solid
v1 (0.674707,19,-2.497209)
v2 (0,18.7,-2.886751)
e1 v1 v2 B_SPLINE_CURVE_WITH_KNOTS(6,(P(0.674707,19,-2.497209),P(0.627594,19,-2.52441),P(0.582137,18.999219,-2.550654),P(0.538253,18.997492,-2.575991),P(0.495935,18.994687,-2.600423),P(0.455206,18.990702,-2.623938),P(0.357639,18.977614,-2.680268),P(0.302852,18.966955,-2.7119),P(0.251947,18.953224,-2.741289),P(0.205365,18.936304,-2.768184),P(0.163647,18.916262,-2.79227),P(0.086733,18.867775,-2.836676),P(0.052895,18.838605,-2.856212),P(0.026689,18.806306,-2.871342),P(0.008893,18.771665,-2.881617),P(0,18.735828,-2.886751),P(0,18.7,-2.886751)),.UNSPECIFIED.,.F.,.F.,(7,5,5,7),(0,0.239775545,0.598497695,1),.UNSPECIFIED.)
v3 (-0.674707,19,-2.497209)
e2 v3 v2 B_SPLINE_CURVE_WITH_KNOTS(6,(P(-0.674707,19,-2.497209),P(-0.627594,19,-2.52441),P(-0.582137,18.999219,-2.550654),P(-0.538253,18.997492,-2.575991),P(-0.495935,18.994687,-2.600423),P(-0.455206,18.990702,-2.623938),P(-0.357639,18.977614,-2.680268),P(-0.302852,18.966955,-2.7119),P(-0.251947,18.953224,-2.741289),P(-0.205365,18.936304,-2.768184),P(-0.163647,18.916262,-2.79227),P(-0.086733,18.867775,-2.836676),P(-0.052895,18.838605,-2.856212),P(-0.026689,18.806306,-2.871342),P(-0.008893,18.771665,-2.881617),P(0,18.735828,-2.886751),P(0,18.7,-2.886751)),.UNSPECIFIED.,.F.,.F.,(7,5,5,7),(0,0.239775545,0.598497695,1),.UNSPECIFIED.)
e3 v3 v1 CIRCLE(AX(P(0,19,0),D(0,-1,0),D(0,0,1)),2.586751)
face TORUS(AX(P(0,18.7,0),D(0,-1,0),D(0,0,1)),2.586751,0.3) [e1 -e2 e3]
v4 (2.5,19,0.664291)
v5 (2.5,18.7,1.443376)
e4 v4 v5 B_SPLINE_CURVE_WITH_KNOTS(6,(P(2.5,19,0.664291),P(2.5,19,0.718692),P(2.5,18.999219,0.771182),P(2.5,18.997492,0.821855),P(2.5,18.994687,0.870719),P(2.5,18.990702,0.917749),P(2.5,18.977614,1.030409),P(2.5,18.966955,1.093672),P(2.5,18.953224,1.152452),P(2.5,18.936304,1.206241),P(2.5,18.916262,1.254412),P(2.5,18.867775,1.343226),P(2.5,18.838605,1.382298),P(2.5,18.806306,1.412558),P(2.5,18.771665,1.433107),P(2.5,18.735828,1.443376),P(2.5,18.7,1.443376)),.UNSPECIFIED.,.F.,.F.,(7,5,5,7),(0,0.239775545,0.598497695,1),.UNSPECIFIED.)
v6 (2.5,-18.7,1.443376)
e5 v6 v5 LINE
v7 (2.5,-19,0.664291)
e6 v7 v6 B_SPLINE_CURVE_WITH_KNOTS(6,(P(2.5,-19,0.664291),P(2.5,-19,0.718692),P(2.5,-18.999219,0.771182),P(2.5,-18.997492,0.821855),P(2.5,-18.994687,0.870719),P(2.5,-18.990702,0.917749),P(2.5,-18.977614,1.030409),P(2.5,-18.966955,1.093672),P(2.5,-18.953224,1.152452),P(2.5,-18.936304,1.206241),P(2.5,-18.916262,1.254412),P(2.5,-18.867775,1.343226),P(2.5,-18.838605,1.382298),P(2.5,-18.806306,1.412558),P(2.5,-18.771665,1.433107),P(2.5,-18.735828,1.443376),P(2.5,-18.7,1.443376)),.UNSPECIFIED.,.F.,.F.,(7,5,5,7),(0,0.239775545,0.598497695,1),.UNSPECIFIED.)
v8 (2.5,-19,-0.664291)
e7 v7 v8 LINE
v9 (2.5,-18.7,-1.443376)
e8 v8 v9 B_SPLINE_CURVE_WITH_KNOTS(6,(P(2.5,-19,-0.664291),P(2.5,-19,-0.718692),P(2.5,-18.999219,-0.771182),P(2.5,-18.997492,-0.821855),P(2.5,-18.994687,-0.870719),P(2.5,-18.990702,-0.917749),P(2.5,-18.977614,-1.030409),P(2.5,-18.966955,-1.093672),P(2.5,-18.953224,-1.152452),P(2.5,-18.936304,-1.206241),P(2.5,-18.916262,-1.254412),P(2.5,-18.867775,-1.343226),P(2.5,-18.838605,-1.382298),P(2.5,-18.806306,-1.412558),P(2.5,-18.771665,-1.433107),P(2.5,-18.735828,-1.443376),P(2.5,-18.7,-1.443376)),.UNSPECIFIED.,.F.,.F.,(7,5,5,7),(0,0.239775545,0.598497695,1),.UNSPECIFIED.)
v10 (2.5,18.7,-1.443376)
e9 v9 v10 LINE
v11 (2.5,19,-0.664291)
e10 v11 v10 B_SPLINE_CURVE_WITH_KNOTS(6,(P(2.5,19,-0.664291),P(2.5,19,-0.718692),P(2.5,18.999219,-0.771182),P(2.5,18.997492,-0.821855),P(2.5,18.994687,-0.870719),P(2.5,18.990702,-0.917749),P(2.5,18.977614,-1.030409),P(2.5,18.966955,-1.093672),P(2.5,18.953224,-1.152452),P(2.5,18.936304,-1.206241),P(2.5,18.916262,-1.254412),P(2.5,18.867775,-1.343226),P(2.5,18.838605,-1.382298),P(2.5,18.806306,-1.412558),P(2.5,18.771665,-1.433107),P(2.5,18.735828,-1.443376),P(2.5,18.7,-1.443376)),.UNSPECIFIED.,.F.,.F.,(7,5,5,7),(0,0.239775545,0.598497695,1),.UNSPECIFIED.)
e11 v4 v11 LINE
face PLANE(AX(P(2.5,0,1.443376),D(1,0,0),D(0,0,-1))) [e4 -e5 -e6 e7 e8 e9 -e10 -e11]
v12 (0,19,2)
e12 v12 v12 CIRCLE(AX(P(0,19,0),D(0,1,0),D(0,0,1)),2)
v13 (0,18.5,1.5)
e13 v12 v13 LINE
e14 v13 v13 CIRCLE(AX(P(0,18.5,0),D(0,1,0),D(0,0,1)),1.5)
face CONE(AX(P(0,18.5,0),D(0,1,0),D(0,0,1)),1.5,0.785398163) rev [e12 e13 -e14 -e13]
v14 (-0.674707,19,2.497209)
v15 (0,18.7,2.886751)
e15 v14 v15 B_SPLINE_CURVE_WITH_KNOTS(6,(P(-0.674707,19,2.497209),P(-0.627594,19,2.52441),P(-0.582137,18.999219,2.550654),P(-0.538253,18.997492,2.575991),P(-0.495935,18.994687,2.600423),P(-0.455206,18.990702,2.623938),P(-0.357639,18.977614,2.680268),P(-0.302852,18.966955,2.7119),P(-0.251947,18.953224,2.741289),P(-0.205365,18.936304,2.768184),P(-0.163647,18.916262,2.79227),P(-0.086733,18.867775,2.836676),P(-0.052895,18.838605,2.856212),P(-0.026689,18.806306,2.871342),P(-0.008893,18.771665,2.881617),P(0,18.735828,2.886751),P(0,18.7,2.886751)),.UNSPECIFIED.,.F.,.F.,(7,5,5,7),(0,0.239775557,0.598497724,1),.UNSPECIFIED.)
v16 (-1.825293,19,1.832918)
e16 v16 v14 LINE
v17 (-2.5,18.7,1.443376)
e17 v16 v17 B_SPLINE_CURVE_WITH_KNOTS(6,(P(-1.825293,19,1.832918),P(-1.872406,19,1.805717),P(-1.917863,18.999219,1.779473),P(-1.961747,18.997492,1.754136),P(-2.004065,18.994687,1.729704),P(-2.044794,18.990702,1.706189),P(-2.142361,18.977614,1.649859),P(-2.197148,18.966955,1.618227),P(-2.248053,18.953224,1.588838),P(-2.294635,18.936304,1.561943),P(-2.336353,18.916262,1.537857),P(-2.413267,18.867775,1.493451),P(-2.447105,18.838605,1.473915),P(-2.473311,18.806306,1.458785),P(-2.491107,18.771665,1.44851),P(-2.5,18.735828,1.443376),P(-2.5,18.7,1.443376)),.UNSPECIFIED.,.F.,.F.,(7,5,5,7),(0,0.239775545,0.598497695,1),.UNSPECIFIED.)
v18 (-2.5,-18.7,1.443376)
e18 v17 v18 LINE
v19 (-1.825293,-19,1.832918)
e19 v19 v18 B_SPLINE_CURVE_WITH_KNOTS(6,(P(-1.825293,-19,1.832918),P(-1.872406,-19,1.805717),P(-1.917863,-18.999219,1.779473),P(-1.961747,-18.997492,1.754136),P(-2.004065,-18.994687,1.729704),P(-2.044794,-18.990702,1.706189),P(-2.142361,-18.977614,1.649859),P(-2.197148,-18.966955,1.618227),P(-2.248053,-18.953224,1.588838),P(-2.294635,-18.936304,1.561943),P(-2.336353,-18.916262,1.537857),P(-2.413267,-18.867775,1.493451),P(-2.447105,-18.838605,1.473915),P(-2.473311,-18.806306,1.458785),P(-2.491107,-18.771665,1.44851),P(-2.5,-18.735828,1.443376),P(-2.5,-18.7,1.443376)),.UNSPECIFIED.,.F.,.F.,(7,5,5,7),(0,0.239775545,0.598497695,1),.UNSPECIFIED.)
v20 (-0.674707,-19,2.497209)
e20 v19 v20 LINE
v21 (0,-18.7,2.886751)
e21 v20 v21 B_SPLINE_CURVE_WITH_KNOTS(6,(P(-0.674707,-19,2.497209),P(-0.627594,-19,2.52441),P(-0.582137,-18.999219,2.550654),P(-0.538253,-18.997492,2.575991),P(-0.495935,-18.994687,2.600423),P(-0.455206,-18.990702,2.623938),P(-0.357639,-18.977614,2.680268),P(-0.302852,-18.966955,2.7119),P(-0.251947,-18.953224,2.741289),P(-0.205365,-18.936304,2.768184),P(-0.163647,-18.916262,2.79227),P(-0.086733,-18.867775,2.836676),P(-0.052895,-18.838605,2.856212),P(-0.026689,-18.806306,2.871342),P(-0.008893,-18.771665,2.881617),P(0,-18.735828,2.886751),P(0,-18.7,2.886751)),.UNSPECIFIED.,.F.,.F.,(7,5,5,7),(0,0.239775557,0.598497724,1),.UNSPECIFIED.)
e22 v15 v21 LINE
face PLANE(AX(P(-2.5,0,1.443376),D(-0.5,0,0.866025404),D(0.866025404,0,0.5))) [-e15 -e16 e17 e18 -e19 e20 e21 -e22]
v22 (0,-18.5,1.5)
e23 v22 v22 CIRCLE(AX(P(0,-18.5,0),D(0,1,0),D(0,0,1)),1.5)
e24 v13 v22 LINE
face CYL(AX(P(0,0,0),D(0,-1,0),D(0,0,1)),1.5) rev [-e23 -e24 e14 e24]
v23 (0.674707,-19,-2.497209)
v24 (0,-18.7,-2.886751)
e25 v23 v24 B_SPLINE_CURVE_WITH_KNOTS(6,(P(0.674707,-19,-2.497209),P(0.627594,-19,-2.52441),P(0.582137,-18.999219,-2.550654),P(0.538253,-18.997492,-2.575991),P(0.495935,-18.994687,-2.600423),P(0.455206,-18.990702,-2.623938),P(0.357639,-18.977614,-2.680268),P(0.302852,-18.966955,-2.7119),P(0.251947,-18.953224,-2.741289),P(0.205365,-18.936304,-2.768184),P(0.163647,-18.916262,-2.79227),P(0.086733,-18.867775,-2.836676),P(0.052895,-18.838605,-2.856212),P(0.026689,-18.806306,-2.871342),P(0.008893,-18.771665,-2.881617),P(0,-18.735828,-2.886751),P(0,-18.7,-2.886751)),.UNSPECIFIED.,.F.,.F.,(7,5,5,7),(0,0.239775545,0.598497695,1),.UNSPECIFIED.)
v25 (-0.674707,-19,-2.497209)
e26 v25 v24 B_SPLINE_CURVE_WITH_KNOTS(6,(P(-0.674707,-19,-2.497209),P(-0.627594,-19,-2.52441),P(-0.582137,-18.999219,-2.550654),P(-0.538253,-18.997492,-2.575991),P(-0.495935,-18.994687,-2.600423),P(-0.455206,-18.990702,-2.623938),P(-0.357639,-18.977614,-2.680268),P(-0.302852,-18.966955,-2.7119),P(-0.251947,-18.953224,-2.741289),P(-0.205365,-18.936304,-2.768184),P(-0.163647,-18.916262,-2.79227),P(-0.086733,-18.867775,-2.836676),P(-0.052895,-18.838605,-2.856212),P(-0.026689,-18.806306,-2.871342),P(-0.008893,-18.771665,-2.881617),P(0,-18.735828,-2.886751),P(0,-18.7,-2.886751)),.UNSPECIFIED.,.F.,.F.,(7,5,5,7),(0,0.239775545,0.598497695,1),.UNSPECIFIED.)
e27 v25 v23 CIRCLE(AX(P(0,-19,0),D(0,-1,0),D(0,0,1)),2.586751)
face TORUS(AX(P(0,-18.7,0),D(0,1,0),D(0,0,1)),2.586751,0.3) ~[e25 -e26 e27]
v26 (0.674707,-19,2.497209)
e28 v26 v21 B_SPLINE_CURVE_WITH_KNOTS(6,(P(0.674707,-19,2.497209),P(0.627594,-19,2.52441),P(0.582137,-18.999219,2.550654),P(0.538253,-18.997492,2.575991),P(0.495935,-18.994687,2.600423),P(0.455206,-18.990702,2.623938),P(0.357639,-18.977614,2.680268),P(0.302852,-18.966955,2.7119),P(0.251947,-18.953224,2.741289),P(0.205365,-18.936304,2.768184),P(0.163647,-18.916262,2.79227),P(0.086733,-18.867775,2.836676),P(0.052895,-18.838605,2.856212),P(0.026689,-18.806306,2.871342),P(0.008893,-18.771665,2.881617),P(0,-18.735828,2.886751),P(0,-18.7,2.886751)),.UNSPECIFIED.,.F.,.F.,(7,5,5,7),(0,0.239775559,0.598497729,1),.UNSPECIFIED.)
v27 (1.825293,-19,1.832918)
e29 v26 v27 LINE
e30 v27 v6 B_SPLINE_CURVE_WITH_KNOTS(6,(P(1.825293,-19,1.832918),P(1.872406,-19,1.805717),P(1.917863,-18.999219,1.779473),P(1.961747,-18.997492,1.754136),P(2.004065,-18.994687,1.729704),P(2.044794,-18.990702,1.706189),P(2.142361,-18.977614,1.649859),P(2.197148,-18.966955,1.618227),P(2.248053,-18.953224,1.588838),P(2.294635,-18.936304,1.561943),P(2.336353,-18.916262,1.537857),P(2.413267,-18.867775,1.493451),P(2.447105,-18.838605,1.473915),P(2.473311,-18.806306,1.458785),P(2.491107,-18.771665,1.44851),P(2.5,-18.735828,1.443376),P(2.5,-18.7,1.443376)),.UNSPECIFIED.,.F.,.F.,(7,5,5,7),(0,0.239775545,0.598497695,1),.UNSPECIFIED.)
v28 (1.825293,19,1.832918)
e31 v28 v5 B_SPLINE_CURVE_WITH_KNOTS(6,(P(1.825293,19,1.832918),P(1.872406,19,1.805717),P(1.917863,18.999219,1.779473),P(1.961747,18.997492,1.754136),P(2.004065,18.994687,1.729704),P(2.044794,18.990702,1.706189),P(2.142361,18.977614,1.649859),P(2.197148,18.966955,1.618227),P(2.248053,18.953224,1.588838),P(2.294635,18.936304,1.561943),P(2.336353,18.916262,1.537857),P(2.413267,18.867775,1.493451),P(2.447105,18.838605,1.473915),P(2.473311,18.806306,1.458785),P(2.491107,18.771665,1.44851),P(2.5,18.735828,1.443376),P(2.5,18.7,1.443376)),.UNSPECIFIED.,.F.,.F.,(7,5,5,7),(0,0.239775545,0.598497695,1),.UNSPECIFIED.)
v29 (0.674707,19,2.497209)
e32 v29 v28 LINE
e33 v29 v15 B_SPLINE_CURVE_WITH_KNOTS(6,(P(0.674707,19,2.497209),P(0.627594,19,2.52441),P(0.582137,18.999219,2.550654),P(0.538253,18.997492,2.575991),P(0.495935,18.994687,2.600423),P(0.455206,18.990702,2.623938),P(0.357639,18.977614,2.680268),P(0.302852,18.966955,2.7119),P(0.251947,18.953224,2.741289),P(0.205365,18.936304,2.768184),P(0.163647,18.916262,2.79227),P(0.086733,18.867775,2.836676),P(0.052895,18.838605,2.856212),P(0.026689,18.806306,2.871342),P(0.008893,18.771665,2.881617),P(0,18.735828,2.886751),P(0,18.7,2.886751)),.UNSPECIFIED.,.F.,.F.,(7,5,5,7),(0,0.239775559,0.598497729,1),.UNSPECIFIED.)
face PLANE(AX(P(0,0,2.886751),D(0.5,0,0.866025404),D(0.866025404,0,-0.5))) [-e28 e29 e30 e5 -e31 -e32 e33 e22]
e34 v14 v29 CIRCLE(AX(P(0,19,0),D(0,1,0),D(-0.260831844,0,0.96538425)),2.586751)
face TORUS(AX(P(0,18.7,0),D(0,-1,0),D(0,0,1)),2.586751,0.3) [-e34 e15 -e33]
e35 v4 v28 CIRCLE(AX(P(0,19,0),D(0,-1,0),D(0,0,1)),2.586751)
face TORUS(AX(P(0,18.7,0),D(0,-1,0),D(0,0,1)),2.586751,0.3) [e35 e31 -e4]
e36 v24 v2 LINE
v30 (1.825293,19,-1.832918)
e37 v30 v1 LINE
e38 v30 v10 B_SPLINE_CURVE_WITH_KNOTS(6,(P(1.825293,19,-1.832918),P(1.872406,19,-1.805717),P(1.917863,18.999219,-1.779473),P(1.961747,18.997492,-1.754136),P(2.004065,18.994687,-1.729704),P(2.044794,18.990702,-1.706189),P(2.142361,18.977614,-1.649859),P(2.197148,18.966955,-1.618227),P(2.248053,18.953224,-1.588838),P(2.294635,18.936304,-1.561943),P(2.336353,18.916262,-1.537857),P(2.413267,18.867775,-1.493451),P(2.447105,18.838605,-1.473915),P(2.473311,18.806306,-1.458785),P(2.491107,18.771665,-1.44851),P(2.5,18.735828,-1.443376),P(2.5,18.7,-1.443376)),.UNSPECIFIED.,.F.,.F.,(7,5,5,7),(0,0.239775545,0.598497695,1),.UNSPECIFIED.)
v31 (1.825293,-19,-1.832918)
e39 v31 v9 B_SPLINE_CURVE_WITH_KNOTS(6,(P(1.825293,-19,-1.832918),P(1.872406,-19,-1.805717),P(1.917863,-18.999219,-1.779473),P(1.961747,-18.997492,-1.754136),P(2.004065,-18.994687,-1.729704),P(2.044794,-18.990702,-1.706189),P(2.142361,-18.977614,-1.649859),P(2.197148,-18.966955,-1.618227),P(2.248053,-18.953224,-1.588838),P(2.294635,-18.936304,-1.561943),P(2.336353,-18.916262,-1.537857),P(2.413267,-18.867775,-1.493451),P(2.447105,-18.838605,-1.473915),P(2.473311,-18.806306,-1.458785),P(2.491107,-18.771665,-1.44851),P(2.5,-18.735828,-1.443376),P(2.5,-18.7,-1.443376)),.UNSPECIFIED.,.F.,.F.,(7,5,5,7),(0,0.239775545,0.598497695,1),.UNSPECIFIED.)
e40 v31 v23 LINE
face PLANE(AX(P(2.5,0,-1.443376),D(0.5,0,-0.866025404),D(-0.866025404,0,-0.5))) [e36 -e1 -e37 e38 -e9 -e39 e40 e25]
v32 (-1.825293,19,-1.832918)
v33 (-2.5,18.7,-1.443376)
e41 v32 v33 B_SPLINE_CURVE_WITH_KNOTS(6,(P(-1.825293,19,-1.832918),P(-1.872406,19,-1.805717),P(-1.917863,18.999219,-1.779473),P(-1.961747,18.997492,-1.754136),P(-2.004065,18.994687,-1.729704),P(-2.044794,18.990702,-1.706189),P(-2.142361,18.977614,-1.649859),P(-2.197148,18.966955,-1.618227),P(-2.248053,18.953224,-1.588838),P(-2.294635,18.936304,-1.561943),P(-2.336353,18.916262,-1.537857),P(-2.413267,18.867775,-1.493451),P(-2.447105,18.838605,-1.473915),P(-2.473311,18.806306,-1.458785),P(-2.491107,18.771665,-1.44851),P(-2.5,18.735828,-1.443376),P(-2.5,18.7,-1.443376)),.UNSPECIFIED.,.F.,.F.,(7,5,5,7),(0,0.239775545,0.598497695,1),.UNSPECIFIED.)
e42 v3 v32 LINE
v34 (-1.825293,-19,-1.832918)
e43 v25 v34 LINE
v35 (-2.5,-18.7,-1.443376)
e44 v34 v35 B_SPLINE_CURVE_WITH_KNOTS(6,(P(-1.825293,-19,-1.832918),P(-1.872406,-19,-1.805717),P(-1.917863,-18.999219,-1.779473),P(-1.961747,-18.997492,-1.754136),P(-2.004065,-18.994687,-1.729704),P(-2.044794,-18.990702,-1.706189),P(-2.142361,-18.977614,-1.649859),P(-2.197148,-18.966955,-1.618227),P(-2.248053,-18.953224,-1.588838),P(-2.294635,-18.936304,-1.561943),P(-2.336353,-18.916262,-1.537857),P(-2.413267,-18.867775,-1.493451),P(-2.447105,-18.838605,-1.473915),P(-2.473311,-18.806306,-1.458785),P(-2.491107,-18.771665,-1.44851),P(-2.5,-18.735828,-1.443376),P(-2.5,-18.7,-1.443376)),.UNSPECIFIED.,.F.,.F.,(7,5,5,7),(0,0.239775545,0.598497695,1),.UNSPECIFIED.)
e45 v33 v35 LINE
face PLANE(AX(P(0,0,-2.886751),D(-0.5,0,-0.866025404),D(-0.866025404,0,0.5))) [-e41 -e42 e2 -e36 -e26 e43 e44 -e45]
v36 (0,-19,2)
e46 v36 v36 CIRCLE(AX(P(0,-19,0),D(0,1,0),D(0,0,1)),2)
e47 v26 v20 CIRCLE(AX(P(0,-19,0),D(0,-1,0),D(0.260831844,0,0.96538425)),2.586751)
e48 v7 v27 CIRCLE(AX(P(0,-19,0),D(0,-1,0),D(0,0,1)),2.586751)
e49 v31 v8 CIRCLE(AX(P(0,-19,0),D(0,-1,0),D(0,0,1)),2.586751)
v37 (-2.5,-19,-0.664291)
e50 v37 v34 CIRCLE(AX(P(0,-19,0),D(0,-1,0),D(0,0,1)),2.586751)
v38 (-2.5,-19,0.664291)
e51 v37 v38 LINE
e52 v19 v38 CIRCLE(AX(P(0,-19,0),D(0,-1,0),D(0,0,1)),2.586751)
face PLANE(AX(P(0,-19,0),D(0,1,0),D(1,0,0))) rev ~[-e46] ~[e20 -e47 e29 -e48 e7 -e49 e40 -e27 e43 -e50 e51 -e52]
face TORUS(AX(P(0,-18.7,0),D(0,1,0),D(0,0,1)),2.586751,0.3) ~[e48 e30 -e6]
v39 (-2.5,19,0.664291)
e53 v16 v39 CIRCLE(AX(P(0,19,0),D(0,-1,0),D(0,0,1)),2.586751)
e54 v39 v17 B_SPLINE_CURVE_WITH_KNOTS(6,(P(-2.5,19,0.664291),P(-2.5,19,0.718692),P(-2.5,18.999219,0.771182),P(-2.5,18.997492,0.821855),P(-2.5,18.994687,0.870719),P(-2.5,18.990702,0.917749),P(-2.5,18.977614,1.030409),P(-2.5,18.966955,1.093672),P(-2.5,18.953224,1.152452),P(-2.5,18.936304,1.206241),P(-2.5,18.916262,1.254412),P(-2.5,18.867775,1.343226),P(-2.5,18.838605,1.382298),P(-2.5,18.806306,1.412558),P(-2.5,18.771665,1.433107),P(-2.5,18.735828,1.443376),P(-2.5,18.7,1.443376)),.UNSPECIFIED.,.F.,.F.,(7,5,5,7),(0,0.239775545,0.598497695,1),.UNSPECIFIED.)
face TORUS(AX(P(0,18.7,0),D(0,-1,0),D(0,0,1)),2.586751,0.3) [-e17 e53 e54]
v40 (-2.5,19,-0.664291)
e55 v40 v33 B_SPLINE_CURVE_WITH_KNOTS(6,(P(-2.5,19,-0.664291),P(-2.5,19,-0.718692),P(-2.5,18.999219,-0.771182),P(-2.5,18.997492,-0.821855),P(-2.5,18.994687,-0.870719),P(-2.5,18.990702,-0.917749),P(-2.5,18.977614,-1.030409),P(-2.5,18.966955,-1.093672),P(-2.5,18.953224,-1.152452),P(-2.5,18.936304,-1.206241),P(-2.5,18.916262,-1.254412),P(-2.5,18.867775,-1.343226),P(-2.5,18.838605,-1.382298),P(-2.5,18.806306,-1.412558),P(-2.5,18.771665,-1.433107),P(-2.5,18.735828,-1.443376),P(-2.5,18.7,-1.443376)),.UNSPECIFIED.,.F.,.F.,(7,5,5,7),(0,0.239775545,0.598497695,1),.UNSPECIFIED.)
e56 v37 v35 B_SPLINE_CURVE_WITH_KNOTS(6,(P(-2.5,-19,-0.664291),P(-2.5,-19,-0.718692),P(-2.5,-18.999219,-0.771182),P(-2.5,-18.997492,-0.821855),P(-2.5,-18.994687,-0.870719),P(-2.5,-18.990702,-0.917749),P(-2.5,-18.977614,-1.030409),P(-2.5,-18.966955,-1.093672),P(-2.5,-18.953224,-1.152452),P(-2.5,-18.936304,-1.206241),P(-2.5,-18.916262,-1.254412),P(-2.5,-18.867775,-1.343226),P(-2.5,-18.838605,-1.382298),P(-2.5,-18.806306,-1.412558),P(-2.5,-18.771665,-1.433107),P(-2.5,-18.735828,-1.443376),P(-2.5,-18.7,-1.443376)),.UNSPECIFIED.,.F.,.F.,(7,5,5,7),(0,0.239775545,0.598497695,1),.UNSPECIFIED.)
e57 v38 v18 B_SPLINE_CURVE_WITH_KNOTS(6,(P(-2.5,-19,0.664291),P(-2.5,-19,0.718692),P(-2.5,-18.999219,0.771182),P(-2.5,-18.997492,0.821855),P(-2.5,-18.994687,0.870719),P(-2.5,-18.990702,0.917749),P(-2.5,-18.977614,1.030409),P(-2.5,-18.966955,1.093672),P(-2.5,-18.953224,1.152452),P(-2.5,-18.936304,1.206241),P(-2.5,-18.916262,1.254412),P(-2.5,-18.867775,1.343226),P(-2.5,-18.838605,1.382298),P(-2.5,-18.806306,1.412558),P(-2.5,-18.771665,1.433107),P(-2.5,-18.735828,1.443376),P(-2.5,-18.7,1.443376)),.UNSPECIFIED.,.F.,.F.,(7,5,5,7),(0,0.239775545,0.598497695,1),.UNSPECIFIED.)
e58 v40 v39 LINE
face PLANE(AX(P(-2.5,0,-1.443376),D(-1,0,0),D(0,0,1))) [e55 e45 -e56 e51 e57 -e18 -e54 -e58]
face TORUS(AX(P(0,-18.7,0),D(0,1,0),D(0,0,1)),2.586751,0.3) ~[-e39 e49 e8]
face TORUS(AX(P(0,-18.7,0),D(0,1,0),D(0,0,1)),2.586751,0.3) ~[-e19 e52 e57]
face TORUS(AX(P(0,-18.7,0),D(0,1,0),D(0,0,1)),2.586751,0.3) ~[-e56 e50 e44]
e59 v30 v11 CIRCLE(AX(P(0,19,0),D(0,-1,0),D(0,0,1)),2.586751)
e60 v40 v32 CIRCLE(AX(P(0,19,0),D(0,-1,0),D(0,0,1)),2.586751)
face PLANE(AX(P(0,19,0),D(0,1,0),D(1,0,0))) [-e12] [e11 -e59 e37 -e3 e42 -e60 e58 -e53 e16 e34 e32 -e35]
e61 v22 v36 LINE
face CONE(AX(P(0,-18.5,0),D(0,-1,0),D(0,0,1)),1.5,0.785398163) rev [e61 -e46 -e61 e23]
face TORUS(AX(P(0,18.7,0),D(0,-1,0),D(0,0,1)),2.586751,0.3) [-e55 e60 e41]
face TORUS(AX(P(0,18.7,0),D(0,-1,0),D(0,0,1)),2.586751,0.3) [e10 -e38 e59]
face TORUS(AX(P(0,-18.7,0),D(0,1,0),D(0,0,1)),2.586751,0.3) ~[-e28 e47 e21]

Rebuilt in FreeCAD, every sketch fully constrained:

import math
import FreeCAD as App
import Part
import Sketcher
from FreeCAD import Vector
Q = App.Units.Quantity


def edges_at(feature, points):
    """Names of the edges that pass closest to the given points."""
    edges = feature.Shape.Edges
    near = lambda p: min(range(len(edges)), key=lambda i: edges[i].distToShape(Part.Vertex(*p))[0])
    return sorted({f"Edge{near(p) + 1}" for p in points})

doc = App.newDocument("Part")
body = doc.addObject("PartDesign::Body", "Body")

sketch1 = body.newObject("Sketcher::SketchObject", "Sketch")
sketch1.AttachmentSupport = (doc.getObject("XZ_Plane"), [""])
sketch1.MapMode = "FlatFace"
sketch1.addGeometry([
    Part.LineSegment(Vector(0, 2.886751, 0), Vector(2.5, 1.443376, 0)),
    Part.LineSegment(Vector(2.5, 1.443376, 0), Vector(2.5, -1.443376, 0)),
    Part.LineSegment(Vector(2.5, -1.443376, 0), Vector(0, -2.886751, 0)),
    Part.LineSegment(Vector(0, -2.886751, 0), Vector(-2.5, -1.443376, 0)),
    Part.LineSegment(Vector(-2.5, -1.443376, 0), Vector(-2.5, 1.443376, 0)),
    Part.LineSegment(Vector(-2.5, 1.443376, 0), Vector(0, 2.886751, 0)),
    Part.Circle(Vector(0, 0, 0), Vector(0, 0, 1), 1.5),
], False)
sketch1.addConstraint([
    Sketcher.Constraint("Coincident", 0, 2, 1, 1),
    Sketcher.Constraint("Coincident", 1, 2, 2, 1),
    Sketcher.Constraint("Coincident", 2, 2, 3, 1),
    Sketcher.Constraint("Coincident", 3, 2, 4, 1),
    Sketcher.Constraint("Coincident", 4, 2, 5, 1),
    Sketcher.Constraint("Coincident", 5, 2, 0, 1),
    Sketcher.Constraint("Vertical", 1),
    Sketcher.Constraint("Vertical", 4),
    Sketcher.Constraint("Coincident", 6, 3, -1, 1),
    Sketcher.Constraint("Symmetric", 0, 2, 3, 2, -1, 1),
    Sketcher.Constraint("Symmetric", 2, 2, 5, 2, -1, 1),
    Sketcher.Constraint("PointOnObject", 2, 2, -2),
    Sketcher.Constraint("Parallel", 2, 5),
    Sketcher.Constraint("Horizontal", 1, 2, 3, 2),
    Sketcher.Constraint("Diameter", 6, Q("3 mm")),
    Sketcher.Constraint("Angle", 0, Q("-30 deg")),
    Sketcher.Constraint("DistanceX", 3, 2, 1, 2, Q("5 mm")),
    Sketcher.Constraint("DistanceY", 1, 2, 1, 1, Q("2.886751 mm")),
])
pad1 = body.newObject("PartDesign::Pad", "Pad")
pad1.Profile = sketch1
pad1.Length = 38
pad1.Midplane = True
doc.recompute()

chamfer = body.newObject("PartDesign::Chamfer", "Chamfer")
chamfer.Base = (pad1, edges_at(pad1, [(0, -19, -1.5), (0, 19, -1.5)]))
chamfer.Size = 0.5

sketch2 = body.newObject("Sketcher::SketchObject", "Sketch001")
sketch2.AttachmentSupport = (doc.getObject("YZ_Plane"), [""])
sketch2.MapMode = "FlatFace"
sketch2.addGeometry([
    Part.LineSegment(Vector(19, 2.886751, 0), Vector(18.7, 2.886751, 0)),
    Part.ArcOfCircle(Part.Circle(Vector(18.7, 2.586751, 0), Vector(0, 0, 1), 0.3), math.radians(0), math.radians(90)),
    Part.LineSegment(Vector(19, 2.586751, 0), Vector(19, 2.886751, 0)),
], False)
sketch2.addConstraint([
    Sketcher.Constraint("Tangent", 0, 2, 1, 2),
    Sketcher.Constraint("Tangent", 1, 1, 2, 1),
    Sketcher.Constraint("Coincident", 2, 2, 0, 1),
    Sketcher.Constraint("Horizontal", 0),
    Sketcher.Constraint("Vertical", 2),
    Sketcher.Constraint("Radius", 1, Q("0.3 mm")),
    Sketcher.Constraint("DistanceX", -1, 1, 1, 1, Q("19 mm")),
    Sketcher.Constraint("DistanceY", -1, 1, 1, 3, Q("2.586751 mm")),
])
groove = body.newObject("PartDesign::Groove", "Groove")
groove.Profile = sketch2
groove.ReferenceAxis = (sketch2, ["H_Axis"])
groove.Angle = 360
doc.recompute()

mirrored = body.newObject("PartDesign::Mirrored", "Mirrored")
mirrored.Originals = [groove]
mirrored.MirrorPlane = (doc.getObject("XZ_Plane"), [""])
body.Tip = mirrored

doc.recompute()
